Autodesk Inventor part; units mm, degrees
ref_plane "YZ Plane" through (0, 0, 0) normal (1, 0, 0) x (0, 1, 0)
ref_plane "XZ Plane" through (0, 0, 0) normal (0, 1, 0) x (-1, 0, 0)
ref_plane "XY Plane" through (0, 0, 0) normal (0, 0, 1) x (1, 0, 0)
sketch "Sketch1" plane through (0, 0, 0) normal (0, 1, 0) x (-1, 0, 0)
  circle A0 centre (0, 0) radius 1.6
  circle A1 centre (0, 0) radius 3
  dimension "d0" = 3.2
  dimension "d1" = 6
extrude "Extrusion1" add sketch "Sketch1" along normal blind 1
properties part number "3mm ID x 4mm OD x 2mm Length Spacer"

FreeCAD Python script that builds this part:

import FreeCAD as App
import Part
import Sketcher

doc = App.newDocument("Part")
body = doc.addObject("PartDesign::Body", "Body")

sketch1 = body.newObject("Sketcher::SketchObject", "Sketch")
sketch1.AttachmentSupport = (doc.getObject("XZ_Plane"), [""])
sketch1.MapMode = "FlatFace"
sketch1.addGeometry(Part.Circle(App.Vector(0, 0, 0), App.Vector(0, 0, 1), 3), False)
sketch1.addGeometry(Part.Circle(App.Vector(0, 0, 0), App.Vector(0, 0, 1), 1.6), False)
sketch1.addConstraint(Sketcher.Constraint("Coincident", 0, 3, -1, 1))
sketch1.addConstraint(Sketcher.Constraint("Coincident", 1, 3, -1, 1))
sketch1.addConstraint(Sketcher.Constraint("Diameter", 0, 6.0))
sketch1.addConstraint(Sketcher.Constraint("Diameter", 1, 3.2))
pad1 = body.newObject("PartDesign::Pad", "Pad")
pad1.Profile = sketch1
pad1.Length = 1
pad1.Reversed = True

doc.recompute()
